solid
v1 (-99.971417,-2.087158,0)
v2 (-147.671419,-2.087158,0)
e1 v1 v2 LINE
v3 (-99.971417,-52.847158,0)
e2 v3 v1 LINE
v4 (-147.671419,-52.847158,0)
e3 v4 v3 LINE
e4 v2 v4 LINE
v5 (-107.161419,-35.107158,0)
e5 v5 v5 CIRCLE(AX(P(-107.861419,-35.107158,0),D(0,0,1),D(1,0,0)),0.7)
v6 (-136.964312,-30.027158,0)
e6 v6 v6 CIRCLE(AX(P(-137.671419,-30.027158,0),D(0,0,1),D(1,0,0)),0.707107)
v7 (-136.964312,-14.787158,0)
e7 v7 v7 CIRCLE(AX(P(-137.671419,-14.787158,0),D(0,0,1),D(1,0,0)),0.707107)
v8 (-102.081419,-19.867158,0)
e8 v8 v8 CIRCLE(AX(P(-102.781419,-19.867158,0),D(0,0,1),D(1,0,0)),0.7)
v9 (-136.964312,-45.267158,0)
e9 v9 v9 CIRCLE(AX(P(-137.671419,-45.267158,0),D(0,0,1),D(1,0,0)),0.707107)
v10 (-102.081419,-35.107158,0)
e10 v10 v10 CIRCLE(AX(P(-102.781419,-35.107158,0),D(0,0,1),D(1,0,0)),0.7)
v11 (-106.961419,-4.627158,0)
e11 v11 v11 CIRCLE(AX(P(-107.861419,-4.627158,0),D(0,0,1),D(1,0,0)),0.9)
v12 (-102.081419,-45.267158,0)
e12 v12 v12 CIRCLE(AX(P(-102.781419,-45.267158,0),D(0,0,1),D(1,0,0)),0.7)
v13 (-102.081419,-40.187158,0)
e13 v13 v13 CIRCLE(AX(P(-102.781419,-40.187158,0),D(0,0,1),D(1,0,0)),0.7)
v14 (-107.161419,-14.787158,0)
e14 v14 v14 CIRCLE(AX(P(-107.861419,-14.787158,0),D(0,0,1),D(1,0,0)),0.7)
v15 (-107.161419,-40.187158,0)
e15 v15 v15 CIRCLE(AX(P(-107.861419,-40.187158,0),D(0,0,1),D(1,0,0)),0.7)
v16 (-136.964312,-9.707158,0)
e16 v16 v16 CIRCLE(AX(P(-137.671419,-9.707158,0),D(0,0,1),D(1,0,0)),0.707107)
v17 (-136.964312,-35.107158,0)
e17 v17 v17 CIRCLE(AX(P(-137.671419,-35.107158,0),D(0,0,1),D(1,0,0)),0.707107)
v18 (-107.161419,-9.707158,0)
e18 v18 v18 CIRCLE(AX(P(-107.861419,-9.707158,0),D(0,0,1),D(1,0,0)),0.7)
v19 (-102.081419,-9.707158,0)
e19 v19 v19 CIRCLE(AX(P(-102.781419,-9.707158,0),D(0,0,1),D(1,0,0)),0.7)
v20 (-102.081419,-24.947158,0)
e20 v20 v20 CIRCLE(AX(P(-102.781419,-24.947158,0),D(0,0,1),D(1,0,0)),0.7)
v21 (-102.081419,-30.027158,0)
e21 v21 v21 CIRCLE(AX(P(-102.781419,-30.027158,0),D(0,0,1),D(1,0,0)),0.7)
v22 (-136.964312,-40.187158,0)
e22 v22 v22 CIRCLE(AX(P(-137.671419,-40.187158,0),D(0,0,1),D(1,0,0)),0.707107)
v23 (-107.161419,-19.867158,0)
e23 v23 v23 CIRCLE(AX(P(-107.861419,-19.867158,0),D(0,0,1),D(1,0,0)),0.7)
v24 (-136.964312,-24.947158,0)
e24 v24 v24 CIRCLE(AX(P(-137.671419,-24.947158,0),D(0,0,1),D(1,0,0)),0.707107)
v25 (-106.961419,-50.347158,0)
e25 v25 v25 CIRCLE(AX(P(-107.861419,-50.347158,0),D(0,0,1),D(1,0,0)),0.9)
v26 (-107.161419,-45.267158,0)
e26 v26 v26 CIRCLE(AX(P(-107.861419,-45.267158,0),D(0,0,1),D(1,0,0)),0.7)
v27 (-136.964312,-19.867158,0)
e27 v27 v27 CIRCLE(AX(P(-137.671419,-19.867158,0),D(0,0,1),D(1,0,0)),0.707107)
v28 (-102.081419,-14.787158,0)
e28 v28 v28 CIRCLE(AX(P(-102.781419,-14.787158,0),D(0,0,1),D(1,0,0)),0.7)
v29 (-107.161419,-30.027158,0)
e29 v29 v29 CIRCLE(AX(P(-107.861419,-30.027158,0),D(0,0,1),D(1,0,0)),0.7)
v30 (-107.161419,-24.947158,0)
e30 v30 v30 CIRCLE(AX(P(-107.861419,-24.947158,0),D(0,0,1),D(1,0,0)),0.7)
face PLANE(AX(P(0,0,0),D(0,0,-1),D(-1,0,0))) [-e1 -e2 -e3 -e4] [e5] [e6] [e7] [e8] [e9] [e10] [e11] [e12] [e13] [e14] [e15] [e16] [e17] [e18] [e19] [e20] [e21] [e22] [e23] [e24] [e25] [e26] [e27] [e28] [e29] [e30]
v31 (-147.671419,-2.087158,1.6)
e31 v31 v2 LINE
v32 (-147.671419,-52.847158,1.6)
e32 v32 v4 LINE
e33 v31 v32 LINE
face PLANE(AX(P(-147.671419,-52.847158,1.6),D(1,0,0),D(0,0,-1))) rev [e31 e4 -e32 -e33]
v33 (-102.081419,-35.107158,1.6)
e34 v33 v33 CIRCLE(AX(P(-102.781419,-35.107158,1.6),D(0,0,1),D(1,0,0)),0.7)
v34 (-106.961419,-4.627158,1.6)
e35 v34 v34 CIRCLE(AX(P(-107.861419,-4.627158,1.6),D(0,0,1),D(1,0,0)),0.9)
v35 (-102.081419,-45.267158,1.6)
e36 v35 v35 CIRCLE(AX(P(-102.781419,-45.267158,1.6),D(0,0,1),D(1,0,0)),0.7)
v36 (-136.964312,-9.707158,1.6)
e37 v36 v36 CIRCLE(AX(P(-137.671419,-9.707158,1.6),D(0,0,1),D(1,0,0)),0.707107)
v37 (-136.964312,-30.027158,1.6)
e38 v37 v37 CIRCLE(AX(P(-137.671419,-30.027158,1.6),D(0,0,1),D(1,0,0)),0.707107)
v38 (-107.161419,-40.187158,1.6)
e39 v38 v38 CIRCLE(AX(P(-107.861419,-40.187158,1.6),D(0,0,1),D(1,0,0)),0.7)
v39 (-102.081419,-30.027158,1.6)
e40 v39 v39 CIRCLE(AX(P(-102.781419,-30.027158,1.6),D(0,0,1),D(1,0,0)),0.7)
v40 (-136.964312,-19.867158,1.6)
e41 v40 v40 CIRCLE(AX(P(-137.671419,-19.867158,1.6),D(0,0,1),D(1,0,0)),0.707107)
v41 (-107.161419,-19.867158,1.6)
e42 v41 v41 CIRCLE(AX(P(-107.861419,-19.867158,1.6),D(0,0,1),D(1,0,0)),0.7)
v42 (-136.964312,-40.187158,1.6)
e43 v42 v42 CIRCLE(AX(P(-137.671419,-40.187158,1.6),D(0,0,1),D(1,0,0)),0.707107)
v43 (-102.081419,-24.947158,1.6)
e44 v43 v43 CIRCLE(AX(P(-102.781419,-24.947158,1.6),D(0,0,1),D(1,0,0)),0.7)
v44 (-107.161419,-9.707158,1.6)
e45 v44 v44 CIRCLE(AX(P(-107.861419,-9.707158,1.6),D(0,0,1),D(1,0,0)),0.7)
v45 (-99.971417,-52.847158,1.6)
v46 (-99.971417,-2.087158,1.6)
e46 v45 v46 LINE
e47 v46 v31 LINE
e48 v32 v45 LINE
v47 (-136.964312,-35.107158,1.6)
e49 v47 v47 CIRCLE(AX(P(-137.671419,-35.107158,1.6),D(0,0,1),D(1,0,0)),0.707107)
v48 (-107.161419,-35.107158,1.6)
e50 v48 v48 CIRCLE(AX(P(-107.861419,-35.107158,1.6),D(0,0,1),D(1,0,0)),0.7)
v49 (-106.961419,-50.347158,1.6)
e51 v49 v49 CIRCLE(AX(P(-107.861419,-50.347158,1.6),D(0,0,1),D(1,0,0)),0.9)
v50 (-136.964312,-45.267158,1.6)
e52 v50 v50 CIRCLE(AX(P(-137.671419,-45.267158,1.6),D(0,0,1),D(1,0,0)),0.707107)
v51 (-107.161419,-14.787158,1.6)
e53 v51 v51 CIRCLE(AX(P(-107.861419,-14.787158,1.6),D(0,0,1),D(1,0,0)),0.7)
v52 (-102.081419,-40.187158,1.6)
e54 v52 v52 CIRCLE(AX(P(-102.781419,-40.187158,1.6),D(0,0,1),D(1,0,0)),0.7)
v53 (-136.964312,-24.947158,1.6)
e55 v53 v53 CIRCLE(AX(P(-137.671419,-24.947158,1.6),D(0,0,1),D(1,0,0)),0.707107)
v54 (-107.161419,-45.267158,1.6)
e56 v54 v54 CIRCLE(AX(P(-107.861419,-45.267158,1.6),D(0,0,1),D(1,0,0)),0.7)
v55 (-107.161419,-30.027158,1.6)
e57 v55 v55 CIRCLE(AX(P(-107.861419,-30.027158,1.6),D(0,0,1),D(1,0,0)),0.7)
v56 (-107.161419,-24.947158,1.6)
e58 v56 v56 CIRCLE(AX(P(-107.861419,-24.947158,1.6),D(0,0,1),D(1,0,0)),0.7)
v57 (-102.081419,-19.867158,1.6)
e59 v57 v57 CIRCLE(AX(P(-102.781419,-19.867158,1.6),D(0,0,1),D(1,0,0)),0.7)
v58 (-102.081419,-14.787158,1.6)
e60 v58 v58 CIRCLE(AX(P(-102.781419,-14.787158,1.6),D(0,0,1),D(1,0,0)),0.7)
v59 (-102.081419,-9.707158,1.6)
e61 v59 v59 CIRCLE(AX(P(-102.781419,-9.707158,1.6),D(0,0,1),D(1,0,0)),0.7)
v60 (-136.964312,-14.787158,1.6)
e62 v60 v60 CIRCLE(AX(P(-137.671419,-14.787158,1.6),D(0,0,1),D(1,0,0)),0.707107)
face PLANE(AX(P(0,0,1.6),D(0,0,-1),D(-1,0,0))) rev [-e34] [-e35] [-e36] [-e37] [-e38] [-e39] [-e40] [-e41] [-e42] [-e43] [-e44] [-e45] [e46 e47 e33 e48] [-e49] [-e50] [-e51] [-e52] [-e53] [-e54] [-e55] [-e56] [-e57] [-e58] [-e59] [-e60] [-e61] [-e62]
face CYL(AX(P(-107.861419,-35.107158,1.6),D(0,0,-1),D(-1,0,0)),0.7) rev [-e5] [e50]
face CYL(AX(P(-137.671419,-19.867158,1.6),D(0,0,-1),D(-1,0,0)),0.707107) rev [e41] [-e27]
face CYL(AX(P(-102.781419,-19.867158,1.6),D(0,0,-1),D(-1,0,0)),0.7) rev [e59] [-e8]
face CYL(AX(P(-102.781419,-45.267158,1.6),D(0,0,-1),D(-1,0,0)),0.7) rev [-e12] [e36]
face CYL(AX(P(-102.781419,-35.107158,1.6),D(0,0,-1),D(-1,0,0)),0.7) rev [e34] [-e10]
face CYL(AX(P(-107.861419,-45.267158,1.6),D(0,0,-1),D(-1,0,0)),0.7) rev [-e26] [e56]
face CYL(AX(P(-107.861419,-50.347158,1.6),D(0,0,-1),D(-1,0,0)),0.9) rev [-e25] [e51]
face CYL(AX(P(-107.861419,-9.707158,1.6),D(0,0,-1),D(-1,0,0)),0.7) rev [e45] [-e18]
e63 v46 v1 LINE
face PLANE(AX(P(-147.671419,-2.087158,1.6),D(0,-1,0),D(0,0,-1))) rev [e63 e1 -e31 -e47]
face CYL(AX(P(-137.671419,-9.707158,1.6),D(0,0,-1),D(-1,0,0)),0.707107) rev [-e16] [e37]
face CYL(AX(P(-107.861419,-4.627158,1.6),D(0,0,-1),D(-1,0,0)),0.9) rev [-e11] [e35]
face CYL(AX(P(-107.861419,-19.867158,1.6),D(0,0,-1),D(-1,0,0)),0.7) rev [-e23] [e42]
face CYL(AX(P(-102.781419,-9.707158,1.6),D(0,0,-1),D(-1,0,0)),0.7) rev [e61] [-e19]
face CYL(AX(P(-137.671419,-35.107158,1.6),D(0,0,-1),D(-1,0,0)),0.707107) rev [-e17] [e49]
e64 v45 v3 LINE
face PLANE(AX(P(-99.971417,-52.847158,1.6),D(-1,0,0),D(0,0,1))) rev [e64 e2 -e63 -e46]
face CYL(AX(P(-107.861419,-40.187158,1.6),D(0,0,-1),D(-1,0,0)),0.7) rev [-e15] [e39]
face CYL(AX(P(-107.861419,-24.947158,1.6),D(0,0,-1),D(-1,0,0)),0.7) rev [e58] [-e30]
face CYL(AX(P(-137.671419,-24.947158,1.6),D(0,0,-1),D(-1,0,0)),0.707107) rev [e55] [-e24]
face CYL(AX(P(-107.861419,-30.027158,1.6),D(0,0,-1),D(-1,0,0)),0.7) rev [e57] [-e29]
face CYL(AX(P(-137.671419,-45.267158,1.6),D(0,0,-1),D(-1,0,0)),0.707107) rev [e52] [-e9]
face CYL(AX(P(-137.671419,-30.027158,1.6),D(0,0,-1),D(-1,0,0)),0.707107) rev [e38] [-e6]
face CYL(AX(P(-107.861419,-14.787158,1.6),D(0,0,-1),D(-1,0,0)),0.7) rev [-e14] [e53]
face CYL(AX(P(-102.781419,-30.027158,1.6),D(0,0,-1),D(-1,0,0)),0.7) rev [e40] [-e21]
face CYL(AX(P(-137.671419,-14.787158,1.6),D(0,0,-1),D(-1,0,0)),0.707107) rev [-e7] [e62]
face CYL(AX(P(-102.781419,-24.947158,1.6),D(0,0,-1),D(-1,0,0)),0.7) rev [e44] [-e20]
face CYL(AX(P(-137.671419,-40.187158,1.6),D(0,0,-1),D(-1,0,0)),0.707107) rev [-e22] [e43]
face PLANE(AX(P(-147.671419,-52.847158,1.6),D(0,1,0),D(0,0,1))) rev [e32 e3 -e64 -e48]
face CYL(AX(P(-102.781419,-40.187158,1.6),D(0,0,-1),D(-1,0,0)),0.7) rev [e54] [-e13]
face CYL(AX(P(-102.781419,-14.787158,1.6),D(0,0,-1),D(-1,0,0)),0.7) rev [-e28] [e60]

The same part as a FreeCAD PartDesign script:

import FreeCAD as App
import Part
import Sketcher
from FreeCAD import Vector
Q = App.Units.Quantity

doc = App.newDocument("Part")
body = doc.addObject("PartDesign::Body", "Body")

# Sketch on XY plane
sketch1 = body.newObject("Sketcher::SketchObject", "Sketch")
sketch1.AttachmentSupport = (doc.getObject("XY_Plane"), [""])
sketch1.MapMode = "FlatFace"
sketch1.addGeometry([
    Part.LineSegment(Vector(-147.7, -2.1, 0), Vector(-147.7, -52.8, 0)),  # 0
    Part.LineSegment(Vector(-147.7, -52.8, 0), Vector(-100, -52.8, 0)),  # 1
    Part.LineSegment(Vector(-100, -52.8, 0), Vector(-100, -2.1, 0)),  # 2
    Part.LineSegment(Vector(-100, -2.1, 0), Vector(-147.7, -2.1, 0)),  # 3
    Part.Circle(Vector(-137.7, -45.3, 0), Vector(0, 0, 1), 0.7),  # 4
    Part.Circle(Vector(-137.7, -40.2, 0), Vector(0, 0, 1), 0.7),  # 5
    Part.Circle(Vector(-137.7, -35.1, 0), Vector(0, 0, 1), 0.7),  # 6
    Part.Circle(Vector(-137.7, -30, 0), Vector(0, 0, 1), 0.7),  # 7
    Part.Circle(Vector(-107.9, -50.3, 0), Vector(0, 0, 1), 0.9),  # 8
    Part.Circle(Vector(-107.9, -45.3, 0), Vector(0, 0, 1), 0.7),  # 9
    Part.Circle(Vector(-107.9, -40.2, 0), Vector(0, 0, 1), 0.7),  # 10
    Part.Circle(Vector(-102.8, -45.3, 0), Vector(0, 0, 1), 0.7),  # 11
    Part.Circle(Vector(-102.8, -40.2, 0), Vector(0, 0, 1), 0.7),  # 12
    Part.Circle(Vector(-107.9, -35.1, 0), Vector(0, 0, 1), 0.7),  # 13
    Part.Circle(Vector(-102.8, -35.1, 0), Vector(0, 0, 1), 0.7),  # 14
    Part.Circle(Vector(-107.9, -30, 0), Vector(0, 0, 1), 0.7),  # 15
    Part.Circle(Vector(-102.8, -30, 0), Vector(0, 0, 1), 0.7),  # 16
    Part.Circle(Vector(-137.7, -24.9, 0), Vector(0, 0, 1), 0.7),  # 17
    Part.Circle(Vector(-137.7, -19.9, 0), Vector(0, 0, 1), 0.7),  # 18
    Part.Circle(Vector(-137.7, -14.8, 0), Vector(0, 0, 1), 0.7),  # 19
    Part.Circle(Vector(-137.7, -9.7, 0), Vector(0, 0, 1), 0.7),  # 20
    Part.Circle(Vector(-107.9, -24.9, 0), Vector(0, 0, 1), 0.7),  # 21
    Part.Circle(Vector(-102.8, -24.9, 0), Vector(0, 0, 1), 0.7),  # 22
    Part.Circle(Vector(-107.9, -19.9, 0), Vector(0, 0, 1), 0.7),  # 23
    Part.Circle(Vector(-102.8, -19.9, 0), Vector(0, 0, 1), 0.7),  # 24
    Part.Circle(Vector(-107.9, -14.8, 0), Vector(0, 0, 1), 0.7),  # 25
    Part.Circle(Vector(-107.9, -9.7, 0), Vector(0, 0, 1), 0.7),  # 26
    Part.Circle(Vector(-102.8, -14.8, 0), Vector(0, 0, 1), 0.7),  # 27
    Part.Circle(Vector(-102.8, -9.7, 0), Vector(0, 0, 1), 0.7),  # 28
    Part.Circle(Vector(-107.9, -4.6, 0), Vector(0, 0, 1), 0.9),  # 29
], False)
sketch1.addConstraint([
    Sketcher.Constraint("Coincident", 0, 2, 1, 1),
    Sketcher.Constraint("Coincident", 1, 2, 2, 1),
    Sketcher.Constraint("Coincident", 2, 2, 3, 1),
    Sketcher.Constraint("Coincident", 3, 2, 0, 1),
    Sketcher.Constraint("Vertical", 0),
    Sketcher.Constraint("Horizontal", 1),
    Sketcher.Constraint("Vertical", 2),
    Sketcher.Constraint("Horizontal", 3),
    Sketcher.Constraint("Equal", 4, 5),
    Sketcher.Constraint("Equal", 5, 6),
    Sketcher.Constraint("Equal", 6, 7),
    Sketcher.Constraint("Equal", 9, 10),
    Sketcher.Constraint("Equal", 10, 11),
    Sketcher.Constraint("Equal", 11, 12),
    Sketcher.Constraint("Equal", 12, 13),
    Sketcher.Constraint("Equal", 13, 14),
    Sketcher.Constraint("Equal", 14, 15),
    Sketcher.Constraint("Equal", 15, 16),
    Sketcher.Constraint("Equal", 7, 17),
    Sketcher.Constraint("Equal", 17, 18),
    Sketcher.Constraint("Equal", 18, 19),
    Sketcher.Constraint("Equal", 19, 20),
    Sketcher.Constraint("Equal", 16, 21),
    Sketcher.Constraint("Equal", 21, 22),
    Sketcher.Constraint("Equal", 22, 23),
    Sketcher.Constraint("Equal", 23, 24),
    Sketcher.Constraint("Equal", 24, 25),
    Sketcher.Constraint("Equal", 25, 26),
    Sketcher.Constraint("Equal", 26, 27),
    Sketcher.Constraint("Equal", 27, 28),
    Sketcher.Constraint("Equal", 8, 29),
    Sketcher.Constraint("Horizontal", 4, 3, 9, 3),
    Sketcher.Constraint("Horizontal", 5, 3, 10, 3),
    Sketcher.Constraint("Horizontal", 9, 3, 11, 3),
    Sketcher.Constraint("Horizontal", 10, 3, 12, 3),
    Sketcher.Constraint("Horizontal", 6, 3, 13, 3),
    Sketcher.Constraint("Horizontal", 13, 3, 14, 3),
    Sketcher.Constraint("Horizontal", 7, 3, 15, 3),
    Sketcher.Constraint("Horizontal", 15, 3, 16, 3),
    Sketcher.Constraint("Horizontal", 17, 3, 21, 3),
    Sketcher.Constraint("Horizontal", 21, 3, 22, 3),
    Sketcher.Constraint("Horizontal", 18, 3, 23, 3),
    Sketcher.Constraint("Horizontal", 23, 3, 24, 3),
    Sketcher.Constraint("Horizontal", 19, 3, 25, 3),
    Sketcher.Constraint("Horizontal", 20, 3, 26, 3),
    Sketcher.Constraint("Horizontal", 25, 3, 27, 3),
    Sketcher.Constraint("Horizontal", 26, 3, 28, 3),
    Sketcher.Constraint("Vertical", 4, 3, 5, 3),
    Sketcher.Constraint("Vertical", 5, 3, 6, 3),
    Sketcher.Constraint("Vertical", 6, 3, 7, 3),
    Sketcher.Constraint("Vertical", 8, 3, 9, 3),
    Sketcher.Constraint("Vertical", 9, 3, 10, 3),
    Sketcher.Constraint("Vertical", 11, 3, 12, 3),
    Sketcher.Constraint("Vertical", 10, 3, 13, 3),
    Sketcher.Constraint("Vertical", 12, 3, 14, 3),
    Sketcher.Constraint("Vertical", 13, 3, 15, 3),
    Sketcher.Constraint("Vertical", 14, 3, 16, 3),
    Sketcher.Constraint("Vertical", 7, 3, 17, 3),
    Sketcher.Constraint("Vertical", 17, 3, 18, 3),
    Sketcher.Constraint("Vertical", 18, 3, 19, 3),
    Sketcher.Constraint("Vertical", 19, 3, 20, 3),
    Sketcher.Constraint("Vertical", 15, 3, 21, 3),
    Sketcher.Constraint("Vertical", 16, 3, 22, 3),
    Sketcher.Constraint("Vertical", 21, 3, 23, 3),
    Sketcher.Constraint("Vertical", 22, 3, 24, 3),
    Sketcher.Constraint("Vertical", 23, 3, 25, 3),
    Sketcher.Constraint("Vertical", 25, 3, 26, 3),
    Sketcher.Constraint("Vertical", 24, 3, 27, 3),
    Sketcher.Constraint("Vertical", 27, 3, 28, 3),
    Sketcher.Constraint("Vertical", 26, 3, 29, 3),
    Sketcher.Constraint("Diameter", 8, Q("1.8 mm")),
    Sketcher.Constraint("Diameter", 9, Q("1.4 mm")),
    Sketcher.Constraint("DistanceX", 1, 1, 1, 2, Q("47.700001 mm")),
    Sketcher.Constraint("DistanceX", 0, 2, 4, 3, Q("10 mm")),
    Sketcher.Constraint("DistanceY", 0, 2, 0, 1, Q("50.76 mm")),
    Sketcher.Constraint("DistanceY", 4, 3, 18, 3, Q("25.4 mm")),
    Sketcher.Constraint("DistanceY", 5, 3, 19, 3, Q("25.4 mm")),
    Sketcher.Constraint("DistanceY", 6, 3, 20, 3, Q("25.4 mm")),
    Sketcher.Constraint("DistanceY", 0, 2, 17, 3, Q("27.9 mm")),
    Sketcher.Constraint("DistanceY", 1, 2, 8, 3, Q("2.5 mm")),
    Sketcher.Constraint("DistanceY", 27, 3, 2, 2, Q("12.7 mm")),
    Sketcher.Constraint("DistanceY", 4, 3, 5, 3, Q("5.08 mm")),
    Sketcher.Constraint("DistanceY", 5, 3, 6, 3, Q("5.08 mm")),
    Sketcher.Constraint("DistanceY", 6, 3, 7, 3, Q("5.08 mm")),
    Sketcher.Constraint("DistanceX", 4, 3, 8, 3, Q("29.81 mm")),
    Sketcher.Constraint("DistanceX", 9, 3, 11, 3, Q("5.08 mm")),
    Sketcher.Constraint("DistanceY", 26, 3, 29, 3, Q("5.08 mm")),
    Sketcher.Constraint("Diameter", 4, Q("1.414214 mm")),
    Sketcher.Constraint("DistanceX", 4, 3, -1, 1, Q("137.671419 mm")),
    Sketcher.Constraint("DistanceY", 4, 3, -1, 1, Q("45.267158 mm")),
])
pad1 = body.newObject("PartDesign::Pad", "Pad")
pad1.Profile = sketch1
pad1.Length = 1.6

doc.recompute()
